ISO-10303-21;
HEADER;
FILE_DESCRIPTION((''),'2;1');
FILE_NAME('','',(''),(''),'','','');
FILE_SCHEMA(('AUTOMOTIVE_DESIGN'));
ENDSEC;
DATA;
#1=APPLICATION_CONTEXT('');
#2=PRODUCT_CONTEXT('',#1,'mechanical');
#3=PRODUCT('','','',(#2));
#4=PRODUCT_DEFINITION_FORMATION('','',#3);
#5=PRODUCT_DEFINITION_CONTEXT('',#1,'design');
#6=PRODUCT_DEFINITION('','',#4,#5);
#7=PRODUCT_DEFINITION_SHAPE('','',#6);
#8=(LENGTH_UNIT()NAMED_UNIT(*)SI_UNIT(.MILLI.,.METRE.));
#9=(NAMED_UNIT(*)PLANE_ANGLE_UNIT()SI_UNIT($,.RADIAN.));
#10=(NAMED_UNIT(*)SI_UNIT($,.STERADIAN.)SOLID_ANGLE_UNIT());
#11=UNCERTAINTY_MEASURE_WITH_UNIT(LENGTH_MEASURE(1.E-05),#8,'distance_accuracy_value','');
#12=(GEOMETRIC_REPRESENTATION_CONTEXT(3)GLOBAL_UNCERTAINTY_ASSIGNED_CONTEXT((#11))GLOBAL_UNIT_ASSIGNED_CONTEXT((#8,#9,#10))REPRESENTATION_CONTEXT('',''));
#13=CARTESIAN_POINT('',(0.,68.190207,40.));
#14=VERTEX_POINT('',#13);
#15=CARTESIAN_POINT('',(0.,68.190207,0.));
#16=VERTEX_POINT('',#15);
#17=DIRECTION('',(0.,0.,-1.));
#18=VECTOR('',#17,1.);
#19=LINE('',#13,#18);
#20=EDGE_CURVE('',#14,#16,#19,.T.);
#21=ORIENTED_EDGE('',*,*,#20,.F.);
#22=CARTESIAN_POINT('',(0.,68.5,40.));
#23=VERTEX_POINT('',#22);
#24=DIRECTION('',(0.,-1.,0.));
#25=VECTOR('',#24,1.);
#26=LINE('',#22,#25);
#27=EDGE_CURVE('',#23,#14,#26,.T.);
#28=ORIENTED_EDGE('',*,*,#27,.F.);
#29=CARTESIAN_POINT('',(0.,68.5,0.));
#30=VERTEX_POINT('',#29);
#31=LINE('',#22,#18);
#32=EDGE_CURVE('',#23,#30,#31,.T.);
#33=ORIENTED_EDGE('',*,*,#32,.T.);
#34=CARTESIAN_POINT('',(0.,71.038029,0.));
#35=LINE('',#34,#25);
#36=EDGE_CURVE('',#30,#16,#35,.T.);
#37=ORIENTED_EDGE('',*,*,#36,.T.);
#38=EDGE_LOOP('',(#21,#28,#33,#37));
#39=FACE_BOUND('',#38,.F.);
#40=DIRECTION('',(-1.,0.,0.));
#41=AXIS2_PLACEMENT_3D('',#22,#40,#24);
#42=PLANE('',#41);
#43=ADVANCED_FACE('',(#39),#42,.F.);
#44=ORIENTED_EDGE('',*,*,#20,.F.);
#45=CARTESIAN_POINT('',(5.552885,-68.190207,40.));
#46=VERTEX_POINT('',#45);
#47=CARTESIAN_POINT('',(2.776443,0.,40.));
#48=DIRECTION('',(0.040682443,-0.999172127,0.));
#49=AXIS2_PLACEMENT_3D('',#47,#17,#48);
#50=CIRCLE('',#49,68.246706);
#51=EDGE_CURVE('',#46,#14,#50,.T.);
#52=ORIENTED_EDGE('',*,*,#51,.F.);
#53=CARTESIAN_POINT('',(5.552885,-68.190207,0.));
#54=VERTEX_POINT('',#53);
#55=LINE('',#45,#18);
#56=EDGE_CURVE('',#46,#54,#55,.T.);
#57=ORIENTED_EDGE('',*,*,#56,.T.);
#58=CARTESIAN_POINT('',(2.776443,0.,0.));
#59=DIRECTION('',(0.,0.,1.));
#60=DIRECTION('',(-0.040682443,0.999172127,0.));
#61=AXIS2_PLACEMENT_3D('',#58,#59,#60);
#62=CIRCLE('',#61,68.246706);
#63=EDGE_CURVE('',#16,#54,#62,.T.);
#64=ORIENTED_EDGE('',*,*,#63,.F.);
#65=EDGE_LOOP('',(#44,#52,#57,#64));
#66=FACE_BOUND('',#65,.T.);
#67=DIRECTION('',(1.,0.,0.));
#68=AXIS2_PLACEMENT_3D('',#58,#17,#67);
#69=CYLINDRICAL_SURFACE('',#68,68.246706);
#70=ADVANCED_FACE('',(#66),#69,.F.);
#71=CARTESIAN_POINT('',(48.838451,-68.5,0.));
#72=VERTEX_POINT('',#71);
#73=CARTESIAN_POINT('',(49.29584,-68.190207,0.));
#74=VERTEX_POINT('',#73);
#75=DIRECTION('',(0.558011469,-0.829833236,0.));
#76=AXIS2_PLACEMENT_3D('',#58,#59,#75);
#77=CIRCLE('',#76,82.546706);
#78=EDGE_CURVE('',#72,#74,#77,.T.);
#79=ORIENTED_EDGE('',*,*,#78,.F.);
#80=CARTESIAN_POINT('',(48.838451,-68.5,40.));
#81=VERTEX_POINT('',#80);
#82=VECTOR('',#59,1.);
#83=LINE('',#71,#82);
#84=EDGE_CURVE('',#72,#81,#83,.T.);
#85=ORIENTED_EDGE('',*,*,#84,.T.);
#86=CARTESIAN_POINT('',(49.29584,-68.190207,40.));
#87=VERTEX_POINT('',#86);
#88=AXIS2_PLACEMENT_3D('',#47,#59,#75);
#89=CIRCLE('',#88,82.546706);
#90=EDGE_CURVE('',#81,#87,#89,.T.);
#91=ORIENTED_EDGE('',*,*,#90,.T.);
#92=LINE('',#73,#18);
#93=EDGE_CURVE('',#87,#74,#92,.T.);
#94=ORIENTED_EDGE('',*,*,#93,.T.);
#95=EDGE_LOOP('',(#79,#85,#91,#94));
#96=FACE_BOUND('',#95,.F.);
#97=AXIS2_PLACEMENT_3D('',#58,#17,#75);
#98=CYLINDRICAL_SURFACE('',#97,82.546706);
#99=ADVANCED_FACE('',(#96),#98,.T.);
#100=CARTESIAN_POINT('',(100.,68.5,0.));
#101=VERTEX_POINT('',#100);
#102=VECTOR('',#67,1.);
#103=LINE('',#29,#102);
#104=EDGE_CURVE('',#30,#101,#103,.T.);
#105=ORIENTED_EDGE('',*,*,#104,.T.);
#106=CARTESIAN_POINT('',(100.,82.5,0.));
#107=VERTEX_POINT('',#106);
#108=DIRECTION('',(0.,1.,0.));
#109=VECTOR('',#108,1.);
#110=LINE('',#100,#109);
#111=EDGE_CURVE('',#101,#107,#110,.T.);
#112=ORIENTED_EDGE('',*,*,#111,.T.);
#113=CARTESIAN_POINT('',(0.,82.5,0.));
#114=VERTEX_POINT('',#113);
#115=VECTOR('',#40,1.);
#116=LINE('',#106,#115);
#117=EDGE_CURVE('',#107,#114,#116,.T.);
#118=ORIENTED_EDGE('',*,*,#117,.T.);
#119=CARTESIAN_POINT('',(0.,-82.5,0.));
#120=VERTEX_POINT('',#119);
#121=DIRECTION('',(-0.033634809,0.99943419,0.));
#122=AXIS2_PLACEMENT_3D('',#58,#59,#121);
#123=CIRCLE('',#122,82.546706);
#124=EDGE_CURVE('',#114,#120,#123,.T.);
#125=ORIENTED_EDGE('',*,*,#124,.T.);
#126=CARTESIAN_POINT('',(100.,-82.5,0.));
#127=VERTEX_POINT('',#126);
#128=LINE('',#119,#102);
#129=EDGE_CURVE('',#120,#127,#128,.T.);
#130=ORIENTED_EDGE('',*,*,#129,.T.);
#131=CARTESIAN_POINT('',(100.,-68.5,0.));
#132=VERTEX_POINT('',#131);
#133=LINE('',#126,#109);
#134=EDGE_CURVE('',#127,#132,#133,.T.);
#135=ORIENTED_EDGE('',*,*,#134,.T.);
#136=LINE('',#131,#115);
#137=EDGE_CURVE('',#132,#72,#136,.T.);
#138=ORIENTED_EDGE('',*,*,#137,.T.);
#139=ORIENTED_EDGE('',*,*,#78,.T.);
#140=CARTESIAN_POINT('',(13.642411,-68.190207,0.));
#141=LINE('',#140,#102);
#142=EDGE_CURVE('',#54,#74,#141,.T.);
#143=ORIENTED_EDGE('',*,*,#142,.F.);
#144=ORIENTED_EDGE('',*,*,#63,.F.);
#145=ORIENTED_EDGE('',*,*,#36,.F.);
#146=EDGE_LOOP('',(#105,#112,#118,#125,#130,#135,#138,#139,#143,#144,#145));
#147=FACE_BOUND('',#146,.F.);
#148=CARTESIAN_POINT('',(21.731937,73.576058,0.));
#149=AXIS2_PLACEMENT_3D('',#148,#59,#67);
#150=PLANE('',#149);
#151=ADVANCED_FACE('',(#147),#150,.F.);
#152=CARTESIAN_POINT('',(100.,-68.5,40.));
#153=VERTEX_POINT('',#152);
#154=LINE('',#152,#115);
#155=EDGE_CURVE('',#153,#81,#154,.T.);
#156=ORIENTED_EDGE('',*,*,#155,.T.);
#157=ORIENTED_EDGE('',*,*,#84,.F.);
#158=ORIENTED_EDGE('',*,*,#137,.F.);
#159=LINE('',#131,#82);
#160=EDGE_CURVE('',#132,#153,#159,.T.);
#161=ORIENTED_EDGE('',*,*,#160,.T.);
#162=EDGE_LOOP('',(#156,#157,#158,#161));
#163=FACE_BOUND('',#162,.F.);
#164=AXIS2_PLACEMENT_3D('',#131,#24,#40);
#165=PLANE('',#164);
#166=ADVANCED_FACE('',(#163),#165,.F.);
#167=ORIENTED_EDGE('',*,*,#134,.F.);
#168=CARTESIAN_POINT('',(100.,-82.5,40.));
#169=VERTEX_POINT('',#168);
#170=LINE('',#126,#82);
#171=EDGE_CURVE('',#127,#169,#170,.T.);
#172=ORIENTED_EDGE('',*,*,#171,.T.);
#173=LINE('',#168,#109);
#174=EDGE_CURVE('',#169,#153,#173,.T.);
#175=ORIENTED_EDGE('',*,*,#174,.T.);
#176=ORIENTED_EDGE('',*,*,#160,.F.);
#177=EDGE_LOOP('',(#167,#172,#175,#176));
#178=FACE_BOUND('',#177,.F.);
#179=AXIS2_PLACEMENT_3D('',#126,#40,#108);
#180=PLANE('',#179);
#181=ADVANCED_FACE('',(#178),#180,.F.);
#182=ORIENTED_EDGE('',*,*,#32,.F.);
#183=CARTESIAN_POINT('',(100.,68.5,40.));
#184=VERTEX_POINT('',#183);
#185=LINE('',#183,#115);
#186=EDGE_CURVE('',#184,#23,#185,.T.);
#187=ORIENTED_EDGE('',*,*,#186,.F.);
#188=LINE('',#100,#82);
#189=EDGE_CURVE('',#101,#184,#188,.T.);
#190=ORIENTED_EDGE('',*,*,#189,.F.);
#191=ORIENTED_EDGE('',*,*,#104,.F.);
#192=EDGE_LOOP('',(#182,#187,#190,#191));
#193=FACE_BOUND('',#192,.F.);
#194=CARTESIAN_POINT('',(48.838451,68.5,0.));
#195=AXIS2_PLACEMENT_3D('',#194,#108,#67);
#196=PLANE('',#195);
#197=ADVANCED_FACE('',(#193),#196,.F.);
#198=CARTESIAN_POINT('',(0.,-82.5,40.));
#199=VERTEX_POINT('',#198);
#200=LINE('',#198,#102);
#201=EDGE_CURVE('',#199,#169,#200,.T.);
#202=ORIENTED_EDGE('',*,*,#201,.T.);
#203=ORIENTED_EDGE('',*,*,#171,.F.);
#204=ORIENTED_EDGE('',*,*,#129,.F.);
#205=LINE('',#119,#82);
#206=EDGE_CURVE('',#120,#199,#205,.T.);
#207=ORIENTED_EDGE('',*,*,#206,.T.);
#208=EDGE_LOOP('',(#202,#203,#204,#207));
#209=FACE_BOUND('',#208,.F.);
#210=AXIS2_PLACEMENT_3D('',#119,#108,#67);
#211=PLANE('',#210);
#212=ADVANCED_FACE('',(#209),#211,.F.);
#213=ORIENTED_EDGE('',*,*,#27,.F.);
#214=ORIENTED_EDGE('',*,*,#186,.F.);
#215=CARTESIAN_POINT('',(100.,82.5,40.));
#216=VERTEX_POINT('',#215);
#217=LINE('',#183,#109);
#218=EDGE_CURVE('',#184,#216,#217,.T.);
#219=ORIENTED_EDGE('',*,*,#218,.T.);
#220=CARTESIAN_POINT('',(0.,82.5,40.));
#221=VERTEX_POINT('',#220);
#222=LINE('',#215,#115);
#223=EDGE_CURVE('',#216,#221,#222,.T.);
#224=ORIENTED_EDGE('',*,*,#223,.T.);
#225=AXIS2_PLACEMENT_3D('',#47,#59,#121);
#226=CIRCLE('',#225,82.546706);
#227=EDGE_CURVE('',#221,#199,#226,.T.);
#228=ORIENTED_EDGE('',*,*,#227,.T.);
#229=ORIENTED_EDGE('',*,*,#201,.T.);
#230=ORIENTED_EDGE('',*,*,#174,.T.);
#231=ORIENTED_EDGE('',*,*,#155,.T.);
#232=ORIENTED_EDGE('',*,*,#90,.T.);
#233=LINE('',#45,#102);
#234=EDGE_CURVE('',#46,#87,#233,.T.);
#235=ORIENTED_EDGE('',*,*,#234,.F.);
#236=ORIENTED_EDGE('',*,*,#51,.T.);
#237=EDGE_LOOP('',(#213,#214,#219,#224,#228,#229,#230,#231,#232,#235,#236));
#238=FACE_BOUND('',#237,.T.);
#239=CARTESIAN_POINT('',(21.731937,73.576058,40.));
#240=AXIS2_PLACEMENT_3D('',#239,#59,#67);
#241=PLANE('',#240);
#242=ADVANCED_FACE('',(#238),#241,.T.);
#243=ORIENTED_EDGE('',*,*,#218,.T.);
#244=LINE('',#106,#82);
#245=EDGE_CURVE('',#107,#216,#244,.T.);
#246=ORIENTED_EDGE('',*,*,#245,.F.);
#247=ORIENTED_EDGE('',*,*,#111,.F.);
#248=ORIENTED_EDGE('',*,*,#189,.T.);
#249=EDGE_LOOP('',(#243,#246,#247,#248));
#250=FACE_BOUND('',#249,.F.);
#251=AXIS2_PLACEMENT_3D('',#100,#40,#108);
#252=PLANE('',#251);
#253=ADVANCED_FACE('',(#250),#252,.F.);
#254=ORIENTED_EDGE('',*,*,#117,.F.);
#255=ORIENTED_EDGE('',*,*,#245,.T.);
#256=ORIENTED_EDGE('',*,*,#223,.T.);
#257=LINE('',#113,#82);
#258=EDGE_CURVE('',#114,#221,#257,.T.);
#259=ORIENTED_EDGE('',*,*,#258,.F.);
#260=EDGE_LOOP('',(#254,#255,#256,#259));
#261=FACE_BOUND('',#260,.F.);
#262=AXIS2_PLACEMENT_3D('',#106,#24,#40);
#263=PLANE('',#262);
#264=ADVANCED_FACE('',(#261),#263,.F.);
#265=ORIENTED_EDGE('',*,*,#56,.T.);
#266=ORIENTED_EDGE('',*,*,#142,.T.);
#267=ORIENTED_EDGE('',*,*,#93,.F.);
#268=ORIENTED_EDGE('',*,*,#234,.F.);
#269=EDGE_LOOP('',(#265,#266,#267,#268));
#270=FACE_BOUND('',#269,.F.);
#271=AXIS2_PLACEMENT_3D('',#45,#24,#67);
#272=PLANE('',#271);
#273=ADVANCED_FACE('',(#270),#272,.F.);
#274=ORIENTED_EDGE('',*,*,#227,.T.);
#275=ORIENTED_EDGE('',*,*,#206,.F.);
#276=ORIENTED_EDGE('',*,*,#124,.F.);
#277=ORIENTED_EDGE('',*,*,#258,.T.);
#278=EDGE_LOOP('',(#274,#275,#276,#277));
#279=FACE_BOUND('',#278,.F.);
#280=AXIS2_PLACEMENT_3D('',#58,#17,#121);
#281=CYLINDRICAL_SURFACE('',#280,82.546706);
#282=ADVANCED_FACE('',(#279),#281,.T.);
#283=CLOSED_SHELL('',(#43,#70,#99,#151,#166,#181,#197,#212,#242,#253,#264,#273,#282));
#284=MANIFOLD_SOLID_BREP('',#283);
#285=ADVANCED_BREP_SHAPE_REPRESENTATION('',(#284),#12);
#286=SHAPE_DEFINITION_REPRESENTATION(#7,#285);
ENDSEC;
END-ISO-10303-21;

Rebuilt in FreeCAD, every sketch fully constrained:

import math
import FreeCAD as App
import Part
import Sketcher
from FreeCAD import Vector

doc = App.newDocument("Part")
body = doc.addObject("PartDesign::Body", "Body")

sketch1 = body.newObject("Sketcher::SketchObject", "Sketch")
sketch1.AttachmentSupport = (doc.getObject("XY_Plane"), [""])
sketch1.MapMode = "FlatFace"
sketch1.addGeometry(Part.LineSegment(Vector(49, 68, 0), Vector(100, 68, 0)), False)
sketch1.addGeometry(Part.LineSegment(Vector(100, 68, 0), Vector(100, 82, 0)), False)
sketch1.addGeometry(Part.LineSegment(Vector(100, 82, 0), Vector(0, 82, 0)), False)
sketch1.addGeometry(Part.ArcOfCircle(Part.Circle(Vector(3, 0, 0), Vector(0, 0, 1), 83), math.radians(92), math.radians(268)), False)
sketch1.addGeometry(Part.LineSegment(Vector(0, -82, 0), Vector(100, -82, 0)), False)
sketch1.addGeometry(Part.LineSegment(Vector(100, -82, 0), Vector(100, -68, 0)), False)
sketch1.addGeometry(Part.LineSegment(Vector(100, -68, 0), Vector(49, -68, 0)), False)
sketch1.addGeometry(Part.ArcOfCircle(Part.Circle(Vector(3, 0, 0), Vector(0, 0, 1), 83), math.radians(-56), math.radians(0)), False)
sketch1.addGeometry(Part.ArcOfCircle(Part.Circle(Vector(3, 0, 0), Vector(0, 0, 1), 83), math.radians(0), math.radians(56)), False)
sketch1.addGeometry(Part.Circle(Vector(3, 0, 0), Vector(0, 0, 1), 68), False)
sketch1.addConstraint(Sketcher.Constraint("Coincident", 0, 2, 1, 1))
sketch1.addConstraint(Sketcher.Constraint("Coincident", 1, 2, 2, 1))
sketch1.addConstraint(Sketcher.Constraint("Coincident", 2, 2, 3, 1))
sketch1.addConstraint(Sketcher.Constraint("Coincident", 3, 2, 4, 1))
sketch1.addConstraint(Sketcher.Constraint("Coincident", 4, 2, 5, 1))
sketch1.addConstraint(Sketcher.Constraint("Coincident", 5, 2, 6, 1))
sketch1.addConstraint(Sketcher.Constraint("Coincident", 6, 2, 7, 1))
sketch1.addConstraint(Sketcher.Constraint("Tangent", 7, 2, 8, 1))
sketch1.addConstraint(Sketcher.Constraint("Coincident", 8, 2, 0, 1))
sketch1.addConstraint(Sketcher.Constraint("Horizontal", 0))
sketch1.addConstraint(Sketcher.Constraint("Vertical", 1))
sketch1.addConstraint(Sketcher.Constraint("Horizontal", 2))
sketch1.addConstraint(Sketcher.Constraint("Horizontal", 4))
sketch1.addConstraint(Sketcher.Constraint("Vertical", 5))
sketch1.addConstraint(Sketcher.Constraint("Horizontal", 6))
sketch1.addConstraint(Sketcher.Constraint("Coincident", 7, 3, 3, 3))
sketch1.addConstraint(Sketcher.Constraint("Coincident", 9, 3, 3, 3))
sketch1.addConstraint(Sketcher.Constraint("Equal", 3, 7))
sketch1.addConstraint(Sketcher.Constraint("Equal", 7, 8))
sketch1.addConstraint(Sketcher.Constraint("Symmetric", 2, 2, 3, 2, -1, 1))
sketch1.addConstraint(Sketcher.Constraint("Symmetric", 0, 2, 5, 2, -1))
sketch1.addConstraint(Sketcher.Constraint("PointOnObject", 3, 3, -1))
sketch1.addConstraint(Sketcher.Constraint("PointOnObject", 7, 2, -1))
sketch1.addConstraint(Sketcher.Constraint("DistanceX", 2, 2, 2, 1, 100.0))
sketch1.addConstraint(Sketcher.Constraint("DistanceY", 1, 1, 1, 2, 14.0))
sketch1.addConstraint(Sketcher.Constraint("DistanceY", 3, 2, 2, 2, 165.0))
sketch1.addConstraint(Sketcher.Constraint("Diameter", 9, 136.493412))
sketch1.addConstraint(Sketcher.Constraint("Radius", 3, 82.546706))
pad1 = body.newObject("PartDesign::Pad", "Pad")
pad1.Profile = sketch1
pad1.Length = 40

sketch2 = body.newObject("Sketcher::SketchObject", "Sketch001")
sketch2.AttachmentSupport = (doc.getObject("XY_Plane"), [""])
sketch2.MapMode = "FlatFace"
sketch2.AttachmentOffset = App.Placement(Vector(0, 0, 40), App.Rotation())
sketch2.addGeometry(Part.LineSegment(Vector(128.25, -68.19, 0), Vector(128.25, 68.5, 0)), False)
sketch2.addGeometry(Part.LineSegment(Vector(128.25, 68.5, 0), Vector(0, 68.5, 0)), False)
sketch2.addGeometry(Part.LineSegment(Vector(0, 68.5, 0), Vector(0, 68.19, 0)), False)
sketch2.addGeometry(Part.ArcOfCircle(Part.Circle(Vector(2.78, 0, 0), Vector(0, 0, 1), 68.25), math.radians(0), math.radians(92)), False)
sketch2.addGeometry(Part.ArcOfCircle(Part.Circle(Vector(2.78, 0, 0), Vector(0, 0, 1), 68.25), math.radians(-88), math.radians(0)), False)
sketch2.addGeometry(Part.LineSegment(Vector(5.55, -68.19, 0), Vector(128.25, -68.19, 0)), False)
sketch2.addGeometry(Part.ArcOfCircle(Part.Circle(Vector(2.78, 0, 0), Vector(0, 0, 1), 68.25), math.radians(-92.33), math.radians(-87.67)), False)
sketch2.addGeometry(Part.LineSegment(Vector(5.55, -68.19, 0), Vector(0, -68.19, 0)), False)
sketch2.addConstraint(Sketcher.Constraint("Coincident", 0, 2, 1, 1))
sketch2.addConstraint(Sketcher.Constraint("Coincident", 1, 2, 2, 1))
sketch2.addConstraint(Sketcher.Constraint("Coincident", 2, 2, 3, 2))
sketch2.addConstraint(Sketcher.Constraint("Tangent", 3, 1, 4, 2))
sketch2.addConstraint(Sketcher.Constraint("Coincident", 4, 1, 5, 1))
sketch2.addConstraint(Sketcher.Constraint("Coincident", 5, 2, 0, 1))
sketch2.addConstraint(Sketcher.Constraint("Coincident", 6, 1, 7, 2))
sketch2.addConstraint(Sketcher.Constraint("Coincident", 7, 1, 6, 2))
sketch2.addConstraint(Sketcher.Constraint("Vertical", 0))
sketch2.addConstraint(Sketcher.Constraint("Horizontal", 1))
sketch2.addConstraint(Sketcher.Constraint("Vertical", 2))
sketch2.addConstraint(Sketcher.Constraint("Horizontal", 5))
sketch2.addConstraint(Sketcher.Constraint("Horizontal", 7))
sketch2.addConstraint(Sketcher.Constraint("Coincident", 6, 3, 3, 3))
sketch2.addConstraint(Sketcher.Constraint("Coincident", 7, 1, 4, 1))
sketch2.addConstraint(Sketcher.Constraint("Equal", 3, 4))
sketch2.addConstraint(Sketcher.Constraint("Symmetric", 2, 2, 6, 1, -1, 1))
sketch2.addConstraint(Sketcher.Constraint("PointOnObject", 3, 3, -1))
sketch2.addConstraint(Sketcher.Constraint("PointOnObject", 3, 1, -1))
sketch2.addConstraint(Sketcher.Constraint("DistanceY", -1, 1, 0, 2, 68.5))
sketch2.addConstraint(Sketcher.Constraint("Radius", 3, 68.246706))
sketch2.addConstraint(Sketcher.Constraint("DistanceX", 5, 1, 5, 2, 122.69971))
sketch2.addConstraint(Sketcher.Constraint("DistanceX", 1, 2, 1, 1, 128.252596))
pocket1 = body.newObject("PartDesign::Pocket", "Pocket")
pocket1.Profile = sketch2
pocket1.Length = 43.6

doc.recompute()
